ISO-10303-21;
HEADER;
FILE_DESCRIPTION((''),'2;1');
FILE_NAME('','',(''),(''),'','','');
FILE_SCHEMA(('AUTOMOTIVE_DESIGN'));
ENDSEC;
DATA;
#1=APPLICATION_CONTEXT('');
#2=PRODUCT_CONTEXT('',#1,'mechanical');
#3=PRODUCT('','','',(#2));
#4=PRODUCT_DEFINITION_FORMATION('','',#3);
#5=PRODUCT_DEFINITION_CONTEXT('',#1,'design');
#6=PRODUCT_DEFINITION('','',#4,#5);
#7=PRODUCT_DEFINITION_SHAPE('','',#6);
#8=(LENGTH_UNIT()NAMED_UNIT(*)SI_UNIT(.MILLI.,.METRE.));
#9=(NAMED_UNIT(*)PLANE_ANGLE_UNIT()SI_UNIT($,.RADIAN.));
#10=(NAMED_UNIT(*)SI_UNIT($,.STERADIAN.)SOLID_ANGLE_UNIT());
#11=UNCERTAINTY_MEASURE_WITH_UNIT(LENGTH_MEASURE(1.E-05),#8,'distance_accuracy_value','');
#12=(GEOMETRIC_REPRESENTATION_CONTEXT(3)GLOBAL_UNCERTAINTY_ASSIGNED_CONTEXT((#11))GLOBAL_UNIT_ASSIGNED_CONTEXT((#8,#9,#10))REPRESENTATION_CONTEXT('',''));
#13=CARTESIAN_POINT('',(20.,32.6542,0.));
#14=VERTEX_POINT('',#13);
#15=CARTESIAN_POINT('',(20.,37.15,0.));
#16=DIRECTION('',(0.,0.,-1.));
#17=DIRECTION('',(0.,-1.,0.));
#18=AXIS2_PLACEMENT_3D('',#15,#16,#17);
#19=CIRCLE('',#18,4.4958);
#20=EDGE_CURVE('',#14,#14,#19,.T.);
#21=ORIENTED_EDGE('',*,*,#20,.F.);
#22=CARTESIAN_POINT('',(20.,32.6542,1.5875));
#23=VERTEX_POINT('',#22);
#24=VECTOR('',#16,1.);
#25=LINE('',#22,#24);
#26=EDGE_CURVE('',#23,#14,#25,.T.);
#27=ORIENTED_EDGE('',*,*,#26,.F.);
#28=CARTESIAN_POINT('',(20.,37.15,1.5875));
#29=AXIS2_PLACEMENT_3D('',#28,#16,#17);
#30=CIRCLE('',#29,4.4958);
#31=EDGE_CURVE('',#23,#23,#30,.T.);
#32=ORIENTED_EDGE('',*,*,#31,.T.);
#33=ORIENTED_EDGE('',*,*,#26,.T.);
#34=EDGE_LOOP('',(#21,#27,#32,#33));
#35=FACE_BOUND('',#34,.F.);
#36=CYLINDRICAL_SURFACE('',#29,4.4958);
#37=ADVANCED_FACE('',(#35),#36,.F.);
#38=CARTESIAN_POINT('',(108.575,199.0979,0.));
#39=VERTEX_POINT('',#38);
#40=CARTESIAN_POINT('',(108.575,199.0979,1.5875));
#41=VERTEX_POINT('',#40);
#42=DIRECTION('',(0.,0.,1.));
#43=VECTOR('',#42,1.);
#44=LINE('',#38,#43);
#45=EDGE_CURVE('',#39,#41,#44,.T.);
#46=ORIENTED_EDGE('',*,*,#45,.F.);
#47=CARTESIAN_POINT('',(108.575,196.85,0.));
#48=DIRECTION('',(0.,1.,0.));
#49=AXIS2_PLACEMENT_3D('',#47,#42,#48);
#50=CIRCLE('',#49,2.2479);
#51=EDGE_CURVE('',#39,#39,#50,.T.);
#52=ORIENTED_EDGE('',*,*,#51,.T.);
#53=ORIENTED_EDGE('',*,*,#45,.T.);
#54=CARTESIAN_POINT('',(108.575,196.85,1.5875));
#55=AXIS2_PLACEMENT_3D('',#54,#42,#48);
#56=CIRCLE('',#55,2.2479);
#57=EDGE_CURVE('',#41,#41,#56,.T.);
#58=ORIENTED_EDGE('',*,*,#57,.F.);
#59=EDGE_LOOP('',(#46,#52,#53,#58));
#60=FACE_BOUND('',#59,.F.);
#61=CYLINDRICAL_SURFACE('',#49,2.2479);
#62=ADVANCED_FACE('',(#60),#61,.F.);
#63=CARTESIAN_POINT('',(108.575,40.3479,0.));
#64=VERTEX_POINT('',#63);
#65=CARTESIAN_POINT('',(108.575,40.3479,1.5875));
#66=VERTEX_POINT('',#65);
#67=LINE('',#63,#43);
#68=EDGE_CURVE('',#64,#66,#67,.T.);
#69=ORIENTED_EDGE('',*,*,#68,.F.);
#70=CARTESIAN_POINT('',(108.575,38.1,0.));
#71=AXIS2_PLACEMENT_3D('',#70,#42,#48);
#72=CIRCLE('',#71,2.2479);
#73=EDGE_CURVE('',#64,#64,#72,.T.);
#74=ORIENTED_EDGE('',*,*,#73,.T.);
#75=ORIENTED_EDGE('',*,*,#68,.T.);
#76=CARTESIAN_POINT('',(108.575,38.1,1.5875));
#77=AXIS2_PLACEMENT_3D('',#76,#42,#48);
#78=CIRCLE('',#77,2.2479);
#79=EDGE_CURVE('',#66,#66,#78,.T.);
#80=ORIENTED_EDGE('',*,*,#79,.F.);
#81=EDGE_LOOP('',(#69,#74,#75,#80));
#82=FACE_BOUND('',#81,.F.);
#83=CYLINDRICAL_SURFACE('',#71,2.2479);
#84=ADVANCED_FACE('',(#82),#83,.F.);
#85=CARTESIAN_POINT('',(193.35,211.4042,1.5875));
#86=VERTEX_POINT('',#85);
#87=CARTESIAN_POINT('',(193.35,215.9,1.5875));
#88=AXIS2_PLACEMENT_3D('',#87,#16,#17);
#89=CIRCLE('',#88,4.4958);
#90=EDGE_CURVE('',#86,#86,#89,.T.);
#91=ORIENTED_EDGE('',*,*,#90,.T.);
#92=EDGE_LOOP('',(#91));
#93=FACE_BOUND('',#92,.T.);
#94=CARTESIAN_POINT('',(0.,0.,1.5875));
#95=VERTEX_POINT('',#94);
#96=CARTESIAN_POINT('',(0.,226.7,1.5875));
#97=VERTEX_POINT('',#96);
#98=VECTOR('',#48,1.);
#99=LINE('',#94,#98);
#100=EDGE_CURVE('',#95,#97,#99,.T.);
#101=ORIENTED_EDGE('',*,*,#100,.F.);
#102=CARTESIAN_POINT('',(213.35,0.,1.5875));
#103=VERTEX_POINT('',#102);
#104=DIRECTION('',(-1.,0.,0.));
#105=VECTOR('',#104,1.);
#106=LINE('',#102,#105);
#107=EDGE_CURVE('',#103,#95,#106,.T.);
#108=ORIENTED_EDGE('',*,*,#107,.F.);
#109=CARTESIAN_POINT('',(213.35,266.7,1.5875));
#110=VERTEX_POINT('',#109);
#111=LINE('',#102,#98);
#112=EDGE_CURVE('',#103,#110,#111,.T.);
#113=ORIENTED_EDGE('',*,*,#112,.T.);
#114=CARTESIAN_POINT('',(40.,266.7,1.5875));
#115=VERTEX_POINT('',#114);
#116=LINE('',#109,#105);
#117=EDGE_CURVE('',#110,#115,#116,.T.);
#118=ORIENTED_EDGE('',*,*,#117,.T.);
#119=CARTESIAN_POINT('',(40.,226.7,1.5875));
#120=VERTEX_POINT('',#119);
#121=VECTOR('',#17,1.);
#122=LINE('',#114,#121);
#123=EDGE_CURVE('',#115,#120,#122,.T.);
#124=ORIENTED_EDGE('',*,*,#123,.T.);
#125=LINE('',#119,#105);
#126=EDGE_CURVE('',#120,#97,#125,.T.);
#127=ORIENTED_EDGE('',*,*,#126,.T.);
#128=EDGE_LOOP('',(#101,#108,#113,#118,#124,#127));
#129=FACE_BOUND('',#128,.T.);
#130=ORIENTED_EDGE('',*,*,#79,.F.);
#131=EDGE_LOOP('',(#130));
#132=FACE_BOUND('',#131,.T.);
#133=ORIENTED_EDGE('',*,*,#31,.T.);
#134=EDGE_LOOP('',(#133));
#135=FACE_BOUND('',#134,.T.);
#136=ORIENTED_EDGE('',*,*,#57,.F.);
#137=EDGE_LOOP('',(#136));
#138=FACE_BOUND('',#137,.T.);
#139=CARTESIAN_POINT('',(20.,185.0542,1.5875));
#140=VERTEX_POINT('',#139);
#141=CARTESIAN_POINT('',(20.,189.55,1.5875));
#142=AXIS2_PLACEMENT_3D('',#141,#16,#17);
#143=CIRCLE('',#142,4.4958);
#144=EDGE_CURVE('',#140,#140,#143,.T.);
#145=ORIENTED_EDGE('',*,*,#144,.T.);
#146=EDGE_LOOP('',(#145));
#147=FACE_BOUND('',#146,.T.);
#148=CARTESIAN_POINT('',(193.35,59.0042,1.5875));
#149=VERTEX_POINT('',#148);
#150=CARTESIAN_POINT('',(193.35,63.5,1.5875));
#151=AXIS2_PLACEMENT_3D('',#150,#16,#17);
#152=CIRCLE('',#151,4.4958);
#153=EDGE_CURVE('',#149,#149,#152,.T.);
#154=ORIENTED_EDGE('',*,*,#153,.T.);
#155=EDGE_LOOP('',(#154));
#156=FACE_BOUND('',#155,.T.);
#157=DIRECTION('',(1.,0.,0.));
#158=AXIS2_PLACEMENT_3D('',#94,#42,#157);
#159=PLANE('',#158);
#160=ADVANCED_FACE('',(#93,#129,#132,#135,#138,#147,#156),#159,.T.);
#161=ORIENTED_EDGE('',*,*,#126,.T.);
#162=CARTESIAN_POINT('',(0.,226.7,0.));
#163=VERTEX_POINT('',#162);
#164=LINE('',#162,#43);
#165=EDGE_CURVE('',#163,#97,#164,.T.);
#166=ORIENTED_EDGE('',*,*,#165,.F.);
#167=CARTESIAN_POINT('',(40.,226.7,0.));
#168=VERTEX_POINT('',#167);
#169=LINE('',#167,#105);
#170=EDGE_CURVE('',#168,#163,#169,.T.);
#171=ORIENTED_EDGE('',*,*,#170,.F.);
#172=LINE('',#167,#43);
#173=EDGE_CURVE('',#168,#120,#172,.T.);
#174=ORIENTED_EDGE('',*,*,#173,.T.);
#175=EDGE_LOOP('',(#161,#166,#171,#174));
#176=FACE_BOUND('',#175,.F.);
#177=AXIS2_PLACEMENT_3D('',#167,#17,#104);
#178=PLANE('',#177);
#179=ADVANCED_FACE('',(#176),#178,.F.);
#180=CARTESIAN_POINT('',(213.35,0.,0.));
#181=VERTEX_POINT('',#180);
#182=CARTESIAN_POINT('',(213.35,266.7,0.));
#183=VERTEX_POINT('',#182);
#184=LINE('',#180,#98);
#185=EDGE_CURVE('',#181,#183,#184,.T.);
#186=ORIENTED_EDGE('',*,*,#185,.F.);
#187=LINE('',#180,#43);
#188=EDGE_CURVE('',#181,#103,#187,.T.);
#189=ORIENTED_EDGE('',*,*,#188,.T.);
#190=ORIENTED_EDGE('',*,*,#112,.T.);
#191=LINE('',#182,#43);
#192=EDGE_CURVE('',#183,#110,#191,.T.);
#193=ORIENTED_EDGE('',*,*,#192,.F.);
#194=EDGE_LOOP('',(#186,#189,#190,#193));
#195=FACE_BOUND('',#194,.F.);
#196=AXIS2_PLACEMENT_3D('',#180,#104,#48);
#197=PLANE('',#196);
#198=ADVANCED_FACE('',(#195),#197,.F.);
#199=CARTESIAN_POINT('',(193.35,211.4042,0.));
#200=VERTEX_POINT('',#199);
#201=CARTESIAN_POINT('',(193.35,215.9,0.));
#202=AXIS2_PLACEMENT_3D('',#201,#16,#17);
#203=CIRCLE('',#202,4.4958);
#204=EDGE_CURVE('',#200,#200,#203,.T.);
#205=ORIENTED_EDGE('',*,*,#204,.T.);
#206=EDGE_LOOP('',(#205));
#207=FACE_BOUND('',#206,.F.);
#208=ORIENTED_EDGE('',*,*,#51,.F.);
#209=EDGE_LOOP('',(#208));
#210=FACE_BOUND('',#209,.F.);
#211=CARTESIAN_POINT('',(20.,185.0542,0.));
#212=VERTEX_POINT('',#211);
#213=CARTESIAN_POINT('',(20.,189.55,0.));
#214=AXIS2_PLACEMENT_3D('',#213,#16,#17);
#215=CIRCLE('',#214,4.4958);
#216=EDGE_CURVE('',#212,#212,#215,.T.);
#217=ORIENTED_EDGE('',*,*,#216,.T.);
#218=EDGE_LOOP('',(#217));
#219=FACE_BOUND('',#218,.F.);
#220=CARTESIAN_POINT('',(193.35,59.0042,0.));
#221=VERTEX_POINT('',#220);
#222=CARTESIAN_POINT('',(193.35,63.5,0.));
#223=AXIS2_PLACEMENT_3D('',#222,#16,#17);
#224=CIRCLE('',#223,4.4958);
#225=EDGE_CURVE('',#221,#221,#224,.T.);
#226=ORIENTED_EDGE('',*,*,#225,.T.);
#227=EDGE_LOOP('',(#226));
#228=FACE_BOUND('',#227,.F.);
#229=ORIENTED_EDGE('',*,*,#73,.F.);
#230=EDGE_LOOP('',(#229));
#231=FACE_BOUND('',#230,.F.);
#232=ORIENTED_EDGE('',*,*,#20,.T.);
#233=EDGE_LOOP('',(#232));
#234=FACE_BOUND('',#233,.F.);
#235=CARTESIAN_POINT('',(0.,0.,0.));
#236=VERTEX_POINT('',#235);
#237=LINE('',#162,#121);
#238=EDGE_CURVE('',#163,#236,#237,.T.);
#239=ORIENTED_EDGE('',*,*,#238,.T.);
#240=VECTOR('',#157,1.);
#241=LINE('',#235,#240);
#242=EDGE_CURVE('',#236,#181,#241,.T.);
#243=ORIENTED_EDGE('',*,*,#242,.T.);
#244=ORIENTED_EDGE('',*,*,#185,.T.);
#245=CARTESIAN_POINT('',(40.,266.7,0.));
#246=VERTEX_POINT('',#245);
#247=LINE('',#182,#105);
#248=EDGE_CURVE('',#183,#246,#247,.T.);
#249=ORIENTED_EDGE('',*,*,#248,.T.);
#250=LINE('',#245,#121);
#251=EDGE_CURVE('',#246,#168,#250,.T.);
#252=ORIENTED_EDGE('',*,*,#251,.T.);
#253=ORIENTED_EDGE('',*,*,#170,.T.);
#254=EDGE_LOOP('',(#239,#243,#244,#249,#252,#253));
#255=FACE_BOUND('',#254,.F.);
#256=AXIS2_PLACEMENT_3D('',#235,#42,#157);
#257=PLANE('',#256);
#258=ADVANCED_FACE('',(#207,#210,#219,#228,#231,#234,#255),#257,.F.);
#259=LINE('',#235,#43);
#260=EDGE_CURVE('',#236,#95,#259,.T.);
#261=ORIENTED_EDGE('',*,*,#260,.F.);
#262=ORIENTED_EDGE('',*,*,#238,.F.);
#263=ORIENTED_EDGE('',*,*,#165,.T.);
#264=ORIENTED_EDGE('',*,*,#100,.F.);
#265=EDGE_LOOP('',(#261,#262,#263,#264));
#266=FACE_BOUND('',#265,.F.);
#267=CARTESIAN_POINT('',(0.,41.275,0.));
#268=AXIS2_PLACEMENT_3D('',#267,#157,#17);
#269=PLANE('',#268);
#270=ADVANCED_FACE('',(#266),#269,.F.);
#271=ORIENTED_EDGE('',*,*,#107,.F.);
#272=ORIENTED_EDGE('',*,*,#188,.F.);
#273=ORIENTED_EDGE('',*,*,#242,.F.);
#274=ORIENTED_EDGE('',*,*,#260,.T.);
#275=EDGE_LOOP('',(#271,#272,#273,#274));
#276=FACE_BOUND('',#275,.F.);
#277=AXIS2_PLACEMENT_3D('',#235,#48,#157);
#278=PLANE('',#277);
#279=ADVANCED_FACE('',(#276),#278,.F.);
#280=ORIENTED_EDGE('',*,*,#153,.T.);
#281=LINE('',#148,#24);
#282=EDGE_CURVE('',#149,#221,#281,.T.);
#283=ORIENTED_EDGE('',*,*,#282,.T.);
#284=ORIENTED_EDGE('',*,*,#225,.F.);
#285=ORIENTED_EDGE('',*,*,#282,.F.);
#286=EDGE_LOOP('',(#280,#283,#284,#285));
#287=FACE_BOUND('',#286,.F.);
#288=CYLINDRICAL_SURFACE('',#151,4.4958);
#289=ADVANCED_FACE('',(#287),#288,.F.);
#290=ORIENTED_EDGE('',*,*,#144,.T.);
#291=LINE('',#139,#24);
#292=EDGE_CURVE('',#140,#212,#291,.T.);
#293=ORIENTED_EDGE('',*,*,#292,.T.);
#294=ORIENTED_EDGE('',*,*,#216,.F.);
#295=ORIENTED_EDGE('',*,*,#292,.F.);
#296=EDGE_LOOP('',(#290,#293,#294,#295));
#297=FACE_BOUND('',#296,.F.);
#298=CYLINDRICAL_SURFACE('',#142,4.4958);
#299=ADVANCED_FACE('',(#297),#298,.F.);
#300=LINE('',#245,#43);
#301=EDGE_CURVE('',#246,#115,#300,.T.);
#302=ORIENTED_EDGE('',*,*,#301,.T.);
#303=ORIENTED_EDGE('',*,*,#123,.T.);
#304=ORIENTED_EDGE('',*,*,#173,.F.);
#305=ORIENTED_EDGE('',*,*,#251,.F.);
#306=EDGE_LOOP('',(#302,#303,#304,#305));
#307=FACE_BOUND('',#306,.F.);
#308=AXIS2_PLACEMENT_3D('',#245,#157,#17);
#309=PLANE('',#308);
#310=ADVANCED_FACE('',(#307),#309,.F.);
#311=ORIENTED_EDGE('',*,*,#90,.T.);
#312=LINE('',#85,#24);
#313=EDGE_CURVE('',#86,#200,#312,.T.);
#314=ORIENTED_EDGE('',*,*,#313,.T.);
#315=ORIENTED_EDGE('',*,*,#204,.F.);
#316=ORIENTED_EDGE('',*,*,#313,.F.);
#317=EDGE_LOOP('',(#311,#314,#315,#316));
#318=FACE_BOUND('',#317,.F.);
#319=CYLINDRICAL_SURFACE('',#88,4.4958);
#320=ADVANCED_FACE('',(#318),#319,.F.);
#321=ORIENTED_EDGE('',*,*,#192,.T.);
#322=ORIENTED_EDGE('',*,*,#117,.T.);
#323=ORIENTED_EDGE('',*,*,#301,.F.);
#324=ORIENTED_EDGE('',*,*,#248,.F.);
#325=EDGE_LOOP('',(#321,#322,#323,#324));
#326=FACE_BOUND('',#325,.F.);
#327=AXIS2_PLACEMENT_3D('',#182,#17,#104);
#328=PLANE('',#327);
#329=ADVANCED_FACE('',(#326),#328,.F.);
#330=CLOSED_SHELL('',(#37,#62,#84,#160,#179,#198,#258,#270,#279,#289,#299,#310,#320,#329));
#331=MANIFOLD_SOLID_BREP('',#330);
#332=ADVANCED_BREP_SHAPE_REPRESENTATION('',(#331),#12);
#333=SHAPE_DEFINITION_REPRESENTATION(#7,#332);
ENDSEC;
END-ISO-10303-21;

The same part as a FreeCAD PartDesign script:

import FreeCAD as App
import Part
import Sketcher
Q = App.Units.Quantity

doc = App.newDocument("Part")
body = doc.addObject("PartDesign::Body", "Body")

# Sketch on XY plane
sketch1 = body.newObject("Sketcher::SketchObject", "Sketch")
sketch1.AttachmentSupport = (doc.getObject("XY_Plane"), [""])
sketch1.MapMode = "FlatFace"
sketch1.addGeometry(Part.LineSegment(App.Vector(0, 226.7, 0), App.Vector(0, 0, 0)), False)
sketch1.addGeometry(Part.LineSegment(App.Vector(0, 0, 0), App.Vector(213.35, 0, 0)), False)
sketch1.addGeometry(Part.LineSegment(App.Vector(213.35, 0, 0), App.Vector(213.35, 266.7, 0)), False)
sketch1.addGeometry(Part.LineSegment(App.Vector(213.35, 266.7, 0), App.Vector(40, 266.7, 0)), False)
sketch1.addGeometry(Part.LineSegment(App.Vector(40, 266.7, 0), App.Vector(40, 226.7, 0)), False)
sketch1.addGeometry(Part.LineSegment(App.Vector(40, 226.7, 0), App.Vector(0, 226.7, 0)), False)
sketch1.addConstraint(Sketcher.Constraint("Coincident", 0, 2, 1, 1))
sketch1.addConstraint(Sketcher.Constraint("Coincident", 1, 2, 2, 1))
sketch1.addConstraint(Sketcher.Constraint("Coincident", 2, 2, 3, 1))
sketch1.addConstraint(Sketcher.Constraint("Coincident", 3, 2, 4, 1))
sketch1.addConstraint(Sketcher.Constraint("Coincident", 4, 2, 5, 1))
sketch1.addConstraint(Sketcher.Constraint("Coincident", 5, 2, 0, 1))
sketch1.addConstraint(Sketcher.Constraint("Vertical", 0))
sketch1.addConstraint(Sketcher.Constraint("Horizontal", 1))
sketch1.addConstraint(Sketcher.Constraint("Vertical", 2))
sketch1.addConstraint(Sketcher.Constraint("Horizontal", 3))
sketch1.addConstraint(Sketcher.Constraint("Vertical", 4))
sketch1.addConstraint(Sketcher.Constraint("Horizontal", 5))
sketch1.addConstraint(Sketcher.Constraint("Coincident", 0, 2, -1, 1))
sketch1.addConstraint(Sketcher.Constraint("Equal", 5, 4))
sketch1.addConstraint(Sketcher.Constraint("DistanceY", 2, 1, 2, 2, Q("10.5 in")))
sketch1.addConstraint(Sketcher.Constraint("DistanceX", 1, 1, 1, 2, Q("8.3996 in")))
sketch1.addConstraint(Sketcher.Constraint("DistanceX", 5, 2, 5, 1, Q("1.5748 in")))
pad1 = body.newObject("PartDesign::Pad", "Pad")
pad1.Profile = sketch1
pad1.Length = Q("0.0625 in")

# Sketch on XY plane
sketch2 = body.newObject("Sketcher::SketchObject", "Sketch001")
sketch2.AttachmentSupport = (doc.getObject("XY_Plane"), [""])
sketch2.MapMode = "FlatFace"
sketch2.AttachmentOffset = App.Placement(App.Vector(0, 0, 0.0625 * 25.4), App.Rotation())
sketch2.addGeometry(Part.Circle(App.Vector(20, 189.55, 0), App.Vector(0, 0, 1), 4.4958), False)
sketch2.addGeometry(Part.Circle(App.Vector(20, 37.15, 0), App.Vector(0, 0, 1), 4.4958), False)
sketch2.addGeometry(Part.Circle(App.Vector(193.35, 215.9, 0), App.Vector(0, 0, 1), 4.4958), False)
sketch2.addGeometry(Part.Circle(App.Vector(193.35, 63.5, 0), App.Vector(0, 0, 1), 4.4958), False)
sketch2.addConstraint(Sketcher.Constraint("Equal", 0, 1))
sketch2.addConstraint(Sketcher.Constraint("Equal", 1, 2))
sketch2.addConstraint(Sketcher.Constraint("Equal", 2, 3))
sketch2.addConstraint(Sketcher.Constraint("Vertical", 0, 3, 1, 3))
sketch2.addConstraint(Sketcher.Constraint("Vertical", 2, 3, 3, 3))
sketch2.addConstraint(Sketcher.Constraint("Diameter", 0, Q("0.354 in")))
sketch2.addConstraint(Sketcher.Constraint("DistanceY", 1, 3, 0, 3, Q("6 in")))
sketch2.addConstraint(Sketcher.Constraint("DistanceY", 3, 3, 2, 3, Q("6 in")))
sketch2.addConstraint(Sketcher.Constraint("DistanceY", -1, 1, 2, 3, Q("8.5 in")))
sketch2.addConstraint(Sketcher.Constraint("DistanceX", -1, 1, 0, 3, Q("0.7874 in")))
sketch2.addConstraint(Sketcher.Constraint("DistanceY", -1, 1, 0, 3, Q("7.4626 in")))
sketch2.addConstraint(Sketcher.Constraint("DistanceX", -1, 1, 2, 3, Q("7.6122 in")))
doc.recompute()
hole = body.newObject("PartDesign::Hole", "Hole")
hole.Profile = sketch2
hole.ThreadType = "None"
hole.Diameter = Q("0.354 in")
hole.DepthType = "ThroughAll"

# Sketch on XY plane
sketch3 = body.newObject("Sketcher::SketchObject", "Sketch002")
sketch3.AttachmentSupport = (doc.getObject("XY_Plane"), [""])
sketch3.MapMode = "FlatFace"
sketch3.addGeometry(Part.Circle(App.Vector(108.575, 196.85, 0), App.Vector(0, 0, 1), 2.2479), False)
sketch3.addGeometry(Part.Circle(App.Vector(108.575, 38.1, 0), App.Vector(0, 0, 1), 2.2479), False)
sketch3.addConstraint(Sketcher.Constraint("Equal", 0, 1))
sketch3.addConstraint(Sketcher.Constraint("Vertical", 0, 3, 1, 3))
sketch3.addConstraint(Sketcher.Constraint("Diameter", 0, Q("0.177 in")))
sketch3.addConstraint(Sketcher.Constraint("DistanceY", -1, 1, 1, 3, Q("1.5 in")))
sketch3.addConstraint(Sketcher.Constraint("DistanceY", -1, 1, 0, 3, Q("7.75 in")))
sketch3.addConstraint(Sketcher.Constraint("DistanceX", -1, 1, 0, 3, Q("4.2746 in")))
doc.recompute()
hole2 = body.newObject("PartDesign::Hole", "Hole001")
hole2.Profile = sketch3
hole2.ThreadType = "None"
hole2.Diameter = Q("0.177 in")
hole2.DepthType = "ThroughAll"
hole2.Reversed = True

doc.recompute()
